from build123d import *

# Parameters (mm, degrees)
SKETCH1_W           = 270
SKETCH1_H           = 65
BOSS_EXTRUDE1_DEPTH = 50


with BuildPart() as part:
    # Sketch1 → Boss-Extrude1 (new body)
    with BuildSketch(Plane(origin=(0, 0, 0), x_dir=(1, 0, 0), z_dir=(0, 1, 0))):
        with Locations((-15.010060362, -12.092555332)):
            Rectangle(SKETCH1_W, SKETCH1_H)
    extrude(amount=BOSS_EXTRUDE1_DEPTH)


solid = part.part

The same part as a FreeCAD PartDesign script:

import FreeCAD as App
import Part
import Sketcher

V = App.Vector
Q = App.Units.Quantity

doc = App.newDocument("Part")
body = doc.addObject("PartDesign::Body", "Body")

# Sketch on XZ plane
sketch1 = body.newObject("Sketcher::SketchObject", "Sketch")
sketch1.AttachmentSupport = (doc.getObject("XZ_Plane"), [""])
sketch1.MapMode = "FlatFace"
sketch1.addGeometry(Part.LineSegment(V(-150, -20, 0), V(-150, 45, 0)), False)
sketch1.addGeometry(Part.LineSegment(V(-150, 45, 0), V(120, 45, 0)), False)
sketch1.addGeometry(Part.LineSegment(V(120, 45, 0), V(120, -20, 0)), False)
sketch1.addGeometry(Part.LineSegment(V(120, -20, 0), V(-150, -20, 0)), False)
sketch1.addConstraint(Sketcher.Constraint("Coincident", 0, 2, 1, 1))
sketch1.addConstraint(Sketcher.Constraint("Coincident", 1, 2, 2, 1))
sketch1.addConstraint(Sketcher.Constraint("Coincident", 2, 2, 3, 1))
sketch1.addConstraint(Sketcher.Constraint("Coincident", 3, 2, 0, 1))
sketch1.addConstraint(Sketcher.Constraint("Vertical", 0))
sketch1.addConstraint(Sketcher.Constraint("Horizontal", 1))
sketch1.addConstraint(Sketcher.Constraint("Vertical", 2))
sketch1.addConstraint(Sketcher.Constraint("Horizontal", 3))
sketch1.addConstraint(Sketcher.Constraint("DistanceX", 1, 1, 1, 2, Q("270 mm")))
sketch1.addConstraint(Sketcher.Constraint("DistanceY", 0, 1, 0, 2, Q("65 mm")))
sketch1.addConstraint(Sketcher.Constraint("DistanceX", 0, 2, -1, 1, Q("150.01006 mm")))
sketch1.addConstraint(Sketcher.Constraint("DistanceY", -1, 1, 0, 2, Q("44.592555 mm")))
pad1 = body.newObject("PartDesign::Pad", "Pad")
pad1.Profile = sketch1
pad1.Length = 50
pad1.Reversed = True

doc.recompute()
